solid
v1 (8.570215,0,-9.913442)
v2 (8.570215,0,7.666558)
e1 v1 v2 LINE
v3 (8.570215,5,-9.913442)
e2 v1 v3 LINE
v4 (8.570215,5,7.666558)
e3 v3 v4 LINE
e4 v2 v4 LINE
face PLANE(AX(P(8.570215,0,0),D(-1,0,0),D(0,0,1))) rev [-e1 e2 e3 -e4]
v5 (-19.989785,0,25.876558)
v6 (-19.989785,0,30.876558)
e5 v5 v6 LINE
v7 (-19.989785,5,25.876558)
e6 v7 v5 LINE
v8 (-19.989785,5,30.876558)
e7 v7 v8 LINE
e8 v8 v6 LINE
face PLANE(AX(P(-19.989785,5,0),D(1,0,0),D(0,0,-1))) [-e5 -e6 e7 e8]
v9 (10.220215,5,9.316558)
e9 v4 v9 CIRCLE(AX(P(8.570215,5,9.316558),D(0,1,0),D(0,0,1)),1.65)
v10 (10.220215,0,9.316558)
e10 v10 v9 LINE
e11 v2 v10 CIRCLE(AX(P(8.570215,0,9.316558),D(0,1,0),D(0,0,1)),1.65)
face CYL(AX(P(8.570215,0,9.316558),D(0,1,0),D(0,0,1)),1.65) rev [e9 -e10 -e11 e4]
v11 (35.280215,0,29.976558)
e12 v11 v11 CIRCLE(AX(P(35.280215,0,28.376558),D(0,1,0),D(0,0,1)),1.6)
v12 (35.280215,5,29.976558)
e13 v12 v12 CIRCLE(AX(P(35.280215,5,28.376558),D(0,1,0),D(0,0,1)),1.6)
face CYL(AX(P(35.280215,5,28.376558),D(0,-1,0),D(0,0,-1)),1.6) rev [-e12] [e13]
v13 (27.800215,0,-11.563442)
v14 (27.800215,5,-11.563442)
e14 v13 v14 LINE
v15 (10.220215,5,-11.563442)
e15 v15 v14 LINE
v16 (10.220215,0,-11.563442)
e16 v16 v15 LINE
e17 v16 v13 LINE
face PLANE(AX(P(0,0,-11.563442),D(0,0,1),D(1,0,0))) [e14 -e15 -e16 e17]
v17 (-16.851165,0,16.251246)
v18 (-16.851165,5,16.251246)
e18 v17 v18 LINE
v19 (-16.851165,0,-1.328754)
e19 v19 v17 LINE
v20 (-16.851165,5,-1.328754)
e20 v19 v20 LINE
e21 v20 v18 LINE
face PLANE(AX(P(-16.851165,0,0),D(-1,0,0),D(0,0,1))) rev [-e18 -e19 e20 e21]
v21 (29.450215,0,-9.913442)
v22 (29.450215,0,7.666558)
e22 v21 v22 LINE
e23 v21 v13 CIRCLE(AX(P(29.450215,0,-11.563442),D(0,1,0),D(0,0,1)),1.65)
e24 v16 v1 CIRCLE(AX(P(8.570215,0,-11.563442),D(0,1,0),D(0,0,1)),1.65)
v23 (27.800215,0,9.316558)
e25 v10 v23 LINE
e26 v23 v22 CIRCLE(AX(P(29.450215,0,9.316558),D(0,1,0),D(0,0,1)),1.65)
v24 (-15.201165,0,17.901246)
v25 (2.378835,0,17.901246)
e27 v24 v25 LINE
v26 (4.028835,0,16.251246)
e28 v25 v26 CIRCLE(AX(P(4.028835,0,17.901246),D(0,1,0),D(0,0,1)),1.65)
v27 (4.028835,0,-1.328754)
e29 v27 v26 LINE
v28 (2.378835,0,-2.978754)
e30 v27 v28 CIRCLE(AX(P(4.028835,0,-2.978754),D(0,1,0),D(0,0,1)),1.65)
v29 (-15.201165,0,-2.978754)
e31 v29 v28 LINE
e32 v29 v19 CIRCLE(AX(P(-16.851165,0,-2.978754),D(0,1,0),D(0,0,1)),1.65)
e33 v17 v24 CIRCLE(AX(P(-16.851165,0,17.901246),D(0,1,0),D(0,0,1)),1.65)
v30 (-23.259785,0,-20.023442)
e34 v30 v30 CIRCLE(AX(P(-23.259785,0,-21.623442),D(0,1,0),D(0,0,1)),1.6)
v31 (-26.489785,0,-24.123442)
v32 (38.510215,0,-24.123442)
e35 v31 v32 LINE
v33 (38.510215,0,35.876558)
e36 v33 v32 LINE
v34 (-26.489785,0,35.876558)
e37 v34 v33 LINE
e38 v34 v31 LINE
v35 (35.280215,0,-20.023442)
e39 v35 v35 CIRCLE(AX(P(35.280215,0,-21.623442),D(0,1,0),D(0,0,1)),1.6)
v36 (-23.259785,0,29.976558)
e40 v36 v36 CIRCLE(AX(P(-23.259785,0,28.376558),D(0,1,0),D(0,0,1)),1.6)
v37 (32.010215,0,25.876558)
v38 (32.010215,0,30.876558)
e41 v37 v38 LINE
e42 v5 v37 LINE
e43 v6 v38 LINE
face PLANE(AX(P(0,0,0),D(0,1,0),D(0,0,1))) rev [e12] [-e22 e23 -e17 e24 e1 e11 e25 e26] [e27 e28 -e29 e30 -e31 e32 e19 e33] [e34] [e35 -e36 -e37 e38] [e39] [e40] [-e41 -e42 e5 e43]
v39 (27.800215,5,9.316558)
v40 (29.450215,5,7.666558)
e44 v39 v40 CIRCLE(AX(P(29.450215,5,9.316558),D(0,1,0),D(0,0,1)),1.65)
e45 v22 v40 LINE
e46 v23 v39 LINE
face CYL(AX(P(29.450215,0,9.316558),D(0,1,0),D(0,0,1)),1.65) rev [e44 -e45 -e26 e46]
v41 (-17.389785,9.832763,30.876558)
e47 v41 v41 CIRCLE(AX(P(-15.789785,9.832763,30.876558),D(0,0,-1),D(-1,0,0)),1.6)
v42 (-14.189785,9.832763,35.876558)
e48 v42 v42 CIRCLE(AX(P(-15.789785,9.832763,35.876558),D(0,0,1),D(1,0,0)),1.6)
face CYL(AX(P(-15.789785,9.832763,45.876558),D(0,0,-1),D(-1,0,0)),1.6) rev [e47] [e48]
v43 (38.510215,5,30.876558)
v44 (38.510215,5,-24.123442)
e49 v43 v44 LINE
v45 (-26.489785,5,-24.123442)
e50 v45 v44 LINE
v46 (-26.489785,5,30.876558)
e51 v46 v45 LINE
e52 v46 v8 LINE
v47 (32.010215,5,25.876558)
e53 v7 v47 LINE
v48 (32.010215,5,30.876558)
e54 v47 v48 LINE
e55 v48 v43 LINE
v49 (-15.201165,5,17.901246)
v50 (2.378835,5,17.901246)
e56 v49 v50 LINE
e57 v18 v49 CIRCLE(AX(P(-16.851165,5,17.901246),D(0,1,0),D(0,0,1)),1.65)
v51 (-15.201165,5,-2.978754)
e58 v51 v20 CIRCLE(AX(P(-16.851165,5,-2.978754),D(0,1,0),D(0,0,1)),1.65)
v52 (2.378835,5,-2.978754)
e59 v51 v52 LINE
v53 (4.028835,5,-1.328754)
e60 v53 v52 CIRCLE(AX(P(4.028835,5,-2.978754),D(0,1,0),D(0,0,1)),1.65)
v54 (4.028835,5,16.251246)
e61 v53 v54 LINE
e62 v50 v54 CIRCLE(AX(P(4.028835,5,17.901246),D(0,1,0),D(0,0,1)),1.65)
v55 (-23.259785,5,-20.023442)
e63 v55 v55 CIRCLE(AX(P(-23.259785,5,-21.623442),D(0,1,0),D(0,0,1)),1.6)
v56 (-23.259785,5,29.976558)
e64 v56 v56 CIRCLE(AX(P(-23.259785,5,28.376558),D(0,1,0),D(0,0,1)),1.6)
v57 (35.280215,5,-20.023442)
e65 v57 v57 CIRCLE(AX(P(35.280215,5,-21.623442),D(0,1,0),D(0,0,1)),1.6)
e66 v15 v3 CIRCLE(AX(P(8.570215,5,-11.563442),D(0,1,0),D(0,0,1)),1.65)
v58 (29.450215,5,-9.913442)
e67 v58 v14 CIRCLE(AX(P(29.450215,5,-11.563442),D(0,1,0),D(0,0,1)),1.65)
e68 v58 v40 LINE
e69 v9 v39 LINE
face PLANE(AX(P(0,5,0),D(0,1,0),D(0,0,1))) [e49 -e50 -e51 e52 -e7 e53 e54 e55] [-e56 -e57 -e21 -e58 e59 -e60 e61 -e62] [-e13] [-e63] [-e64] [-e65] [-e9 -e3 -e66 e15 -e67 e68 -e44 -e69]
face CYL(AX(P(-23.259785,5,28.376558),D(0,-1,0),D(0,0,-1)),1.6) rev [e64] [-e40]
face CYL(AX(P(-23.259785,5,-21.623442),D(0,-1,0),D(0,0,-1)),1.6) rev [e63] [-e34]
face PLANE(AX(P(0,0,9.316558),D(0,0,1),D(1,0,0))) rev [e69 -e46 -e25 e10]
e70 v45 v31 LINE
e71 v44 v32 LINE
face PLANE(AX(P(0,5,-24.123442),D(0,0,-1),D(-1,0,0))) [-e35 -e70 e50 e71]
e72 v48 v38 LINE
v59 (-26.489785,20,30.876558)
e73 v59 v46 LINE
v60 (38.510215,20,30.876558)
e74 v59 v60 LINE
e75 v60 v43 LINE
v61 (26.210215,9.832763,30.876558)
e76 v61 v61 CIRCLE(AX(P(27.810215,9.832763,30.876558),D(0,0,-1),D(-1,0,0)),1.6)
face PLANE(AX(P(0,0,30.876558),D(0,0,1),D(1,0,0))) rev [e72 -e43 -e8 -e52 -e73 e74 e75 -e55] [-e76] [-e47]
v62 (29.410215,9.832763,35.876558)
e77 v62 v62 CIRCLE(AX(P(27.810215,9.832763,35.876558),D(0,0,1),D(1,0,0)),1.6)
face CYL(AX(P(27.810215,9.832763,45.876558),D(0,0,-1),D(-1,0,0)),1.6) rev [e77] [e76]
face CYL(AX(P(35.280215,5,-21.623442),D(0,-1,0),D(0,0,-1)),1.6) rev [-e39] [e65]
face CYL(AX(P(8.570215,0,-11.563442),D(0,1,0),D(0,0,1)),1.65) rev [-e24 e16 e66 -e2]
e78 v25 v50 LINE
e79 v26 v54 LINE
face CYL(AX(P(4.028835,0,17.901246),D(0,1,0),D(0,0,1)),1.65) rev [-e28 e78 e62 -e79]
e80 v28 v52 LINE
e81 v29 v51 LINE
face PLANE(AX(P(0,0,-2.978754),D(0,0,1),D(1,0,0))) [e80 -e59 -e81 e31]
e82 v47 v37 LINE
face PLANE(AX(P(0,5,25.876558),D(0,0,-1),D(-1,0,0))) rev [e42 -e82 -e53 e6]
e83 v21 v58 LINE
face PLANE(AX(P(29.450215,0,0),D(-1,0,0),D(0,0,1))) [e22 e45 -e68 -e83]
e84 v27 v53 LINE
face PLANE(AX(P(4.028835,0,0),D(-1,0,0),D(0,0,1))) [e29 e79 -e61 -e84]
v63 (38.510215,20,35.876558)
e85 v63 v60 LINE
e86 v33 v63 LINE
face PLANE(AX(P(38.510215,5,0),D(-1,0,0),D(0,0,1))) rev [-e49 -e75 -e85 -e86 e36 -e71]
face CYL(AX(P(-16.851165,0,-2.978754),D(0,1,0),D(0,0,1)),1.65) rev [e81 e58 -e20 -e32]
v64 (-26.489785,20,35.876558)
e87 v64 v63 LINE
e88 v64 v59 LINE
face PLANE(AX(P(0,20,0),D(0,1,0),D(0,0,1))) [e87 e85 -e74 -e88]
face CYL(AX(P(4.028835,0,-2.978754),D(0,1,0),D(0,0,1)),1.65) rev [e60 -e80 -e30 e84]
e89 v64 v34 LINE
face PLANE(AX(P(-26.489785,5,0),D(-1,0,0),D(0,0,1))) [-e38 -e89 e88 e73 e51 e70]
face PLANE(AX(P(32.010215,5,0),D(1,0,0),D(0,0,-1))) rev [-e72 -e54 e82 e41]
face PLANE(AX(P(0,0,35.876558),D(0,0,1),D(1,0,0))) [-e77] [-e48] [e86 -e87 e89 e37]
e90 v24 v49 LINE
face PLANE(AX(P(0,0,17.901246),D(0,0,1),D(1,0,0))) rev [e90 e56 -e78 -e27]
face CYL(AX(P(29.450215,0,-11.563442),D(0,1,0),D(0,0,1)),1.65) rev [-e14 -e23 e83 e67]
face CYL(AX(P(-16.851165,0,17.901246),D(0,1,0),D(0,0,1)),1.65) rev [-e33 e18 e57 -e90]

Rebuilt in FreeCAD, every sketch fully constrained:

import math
import FreeCAD as App
import Part
import Sketcher

V = App.Vector


def add_polygon(sketch, points):
    """Adds a closed chain of lines whose ends are joined by coincident constraints."""
    first, n = sketch.GeometryCount, len(points)
    for a, b in zip(points, points[1:] + points[:1]):
        sketch.addGeometry(Part.LineSegment(App.Vector(*a, 0), App.Vector(*b, 0)), False)
    for i in range(n):
        sketch.addConstraint(Sketcher.Constraint("Coincident", first + i, 2, first + (i + 1) % n, 1))

doc = App.newDocument("Part")
body = doc.addObject("PartDesign::Body", "Body")

# Sketch on XZ plane
sketch1 = body.newObject("Sketcher::SketchObject", "Sketch")
sketch1.AttachmentSupport = (doc.getObject("XZ_Plane"), [""])
sketch1.MapMode = "FlatFace"
add_polygon(sketch1, [(-19.989785, 25.876558), (32.010215, 25.876558), (32.010215, 30.876558), (38.510215, 30.876558), (38.510215, -24.123442), (-26.489785, -24.123442), (-26.489785, 30.876558), (-19.989785, 30.876558)])  # lines 0-7
sketch1.addGeometry(Part.Circle(V(-23.259785, 28.376558, 0), V(0, 0, 1), 1.6), False)  # 8
sketch1.addGeometry(Part.Circle(V(35.280215, 28.376558, 0), V(0, 0, 1), 1.6), False)  # 9
sketch1.addGeometry(Part.Circle(V(-23.259785, -21.623442, 0), V(0, 0, 1), 1.6), False)  # 10
sketch1.addGeometry(Part.Circle(V(35.280215, -21.623442, 0), V(0, 0, 1), 1.6), False)  # 11
sketch1.addConstraint(Sketcher.Constraint("Horizontal", 0))
sketch1.addConstraint(Sketcher.Constraint("Vertical", 1))
sketch1.addConstraint(Sketcher.Constraint("Horizontal", 2))
sketch1.addConstraint(Sketcher.Constraint("Vertical", 3))
sketch1.addConstraint(Sketcher.Constraint("Horizontal", 4))
sketch1.addConstraint(Sketcher.Constraint("Vertical", 5))
sketch1.addConstraint(Sketcher.Constraint("Horizontal", 6))
sketch1.addConstraint(Sketcher.Constraint("Vertical", 7))
sketch1.addConstraint(Sketcher.Constraint("Equal", 8, 9))
sketch1.addConstraint(Sketcher.Constraint("Equal", 9, 10))
sketch1.addConstraint(Sketcher.Constraint("Equal", 10, 11))
sketch1.addConstraint(Sketcher.Constraint("Horizontal", 8, 3, 9, 3))
sketch1.addConstraint(Sketcher.Constraint("Horizontal", 10, 3, 11, 3))
sketch1.addConstraint(Sketcher.Constraint("Horizontal", 2, 2, 5, 2))
sketch1.addConstraint(Sketcher.Constraint("Vertical", 8, 3, 10, 3))
sketch1.addConstraint(Sketcher.Constraint("Vertical", 9, 3, 11, 3))
sketch1.addConstraint(Sketcher.Constraint("Equal", 2, 6))
sketch1.addConstraint(Sketcher.Constraint("Diameter", 8, 3.2))
sketch1.addConstraint(Sketcher.Constraint("DistanceX", 0, 1, 0, 2, 52.0))
sketch1.addConstraint(Sketcher.Constraint("DistanceX", 4, 2, 4, 1, 65.0))
sketch1.addConstraint(Sketcher.Constraint("DistanceY", 1, 1, 1, 2, 5.0))
sketch1.addConstraint(Sketcher.Constraint("DistanceY", 3, 2, 3, 1, 55.0))
sketch1.addConstraint(Sketcher.Constraint("DistanceY", 10, 3, 8, 3, 50.0))
sketch1.addConstraint(Sketcher.Constraint("DistanceY", 0, 2, 9, 3, 2.5))
sketch1.addConstraint(Sketcher.Constraint("DistanceX", 8, 3, 9, 3, 58.54))
sketch1.addConstraint(Sketcher.Constraint("DistanceX", 0, 2, 9, 3, 3.27))
sketch1.addConstraint(Sketcher.Constraint("DistanceX", 8, 3, -1, 1, 23.259785))
sketch1.addConstraint(Sketcher.Constraint("DistanceY", -1, 1, 8, 3, 28.376558))
pad1 = body.newObject("PartDesign::Pad", "Pad")
pad1.Profile = sketch1
pad1.Length = 5
pad1.Reversed = True

# Sketch on XZ plane
sketch2 = body.newObject("Sketcher::SketchObject", "Sketch001")
sketch2.AttachmentSupport = (doc.getObject("XZ_Plane"), [""])
sketch2.MapMode = "FlatFace"
sketch2.AttachmentOffset = App.Placement(V(0, 0, -5), App.Rotation())
sketch2.addGeometry(Part.ArcOfCircle(Part.Circle(V(-16.851165, 17.901246, 0), V(0, 0, 1), 1.65), math.radians(0), math.radians(270)), False)
sketch2.addGeometry(Part.LineSegment(V(-15.201165, 17.901246, 0), V(2.378835, 17.901246, 0)), False)
sketch2.addGeometry(Part.ArcOfCircle(Part.Circle(V(4.028835, 17.901246, 0), V(0, 0, 1), 1.65), math.radians(-90), math.radians(180)), False)
sketch2.addGeometry(Part.LineSegment(V(4.028835, 16.251246, 0), V(4.028835, -1.328754, 0)), False)
sketch2.addGeometry(Part.ArcOfCircle(Part.Circle(V(4.028835, -2.978754, 0), V(0, 0, 1), 1.65), math.radians(0), math.radians(90)), False)
sketch2.addGeometry(Part.ArcOfCircle(Part.Circle(V(4.028835, -2.978754, 0), V(0, 0, 1), 1.65), math.radians(180), math.radians(360)), False)
sketch2.addGeometry(Part.LineSegment(V(2.378835, -2.978754, 0), V(-15.201165, -2.978754, 0)), False)
sketch2.addGeometry(Part.ArcOfCircle(Part.Circle(V(-16.851165, -2.978754, 0), V(0, 0, 1), 1.65), math.radians(90), math.radians(360)), False)
sketch2.addGeometry(Part.LineSegment(V(-16.851165, -1.328754, 0), V(-16.851165, 16.251246, 0)), False)
sketch2.addGeometry(Part.ArcOfCircle(Part.Circle(V(8.570215, 9.316558, 0), V(0, 0, 1), 1.65), math.radians(0), math.radians(270)), False)
sketch2.addGeometry(Part.LineSegment(V(10.220215, 9.316558, 0), V(27.800215, 9.316558, 0)), False)
sketch2.addGeometry(Part.ArcOfCircle(Part.Circle(V(29.450215, 9.316558, 0), V(0, 0, 1), 1.65), math.radians(-90), math.radians(180)), False)
sketch2.addGeometry(Part.LineSegment(V(29.450215, 7.666558, 0), V(29.450215, -9.913442, 0)), False)
sketch2.addGeometry(Part.ArcOfCircle(Part.Circle(V(29.450215, -11.563442, 0), V(0, 0, 1), 1.65), math.radians(180), math.radians(450)), False)
sketch2.addGeometry(Part.LineSegment(V(27.800215, -11.563442, 0), V(10.220215, -11.563442, 0)), False)
sketch2.addGeometry(Part.ArcOfCircle(Part.Circle(V(8.570215, -11.563442, 0), V(0, 0, 1), 1.65), math.radians(90), math.radians(360)), False)
sketch2.addGeometry(Part.LineSegment(V(8.570215, -9.913442, 0), V(8.570215, 7.666558, 0)), False)
sketch2.addConstraint(Sketcher.Constraint("Coincident", 0, 1, 1, 1))
sketch2.addConstraint(Sketcher.Constraint("Coincident", 1, 2, 2, 2))
sketch2.addConstraint(Sketcher.Constraint("Coincident", 2, 1, 3, 1))
sketch2.addConstraint(Sketcher.Constraint("Coincident", 3, 2, 4, 2))
sketch2.addConstraint(Sketcher.Constraint("Tangent", 4, 1, 5, 2))
sketch2.addConstraint(Sketcher.Constraint("Coincident", 5, 1, 6, 1))
sketch2.addConstraint(Sketcher.Constraint("Coincident", 6, 2, 7, 2))
sketch2.addConstraint(Sketcher.Constraint("Coincident", 7, 1, 8, 1))
sketch2.addConstraint(Sketcher.Constraint("Coincident", 8, 2, 0, 2))
sketch2.addConstraint(Sketcher.Constraint("Coincident", 9, 1, 10, 1))
sketch2.addConstraint(Sketcher.Constraint("Coincident", 10, 2, 11, 2))
sketch2.addConstraint(Sketcher.Constraint("Coincident", 11, 1, 12, 1))
sketch2.addConstraint(Sketcher.Constraint("Coincident", 12, 2, 13, 2))
sketch2.addConstraint(Sketcher.Constraint("Coincident", 13, 1, 14, 1))
sketch2.addConstraint(Sketcher.Constraint("Coincident", 14, 2, 15, 2))
sketch2.addConstraint(Sketcher.Constraint("Coincident", 15, 1, 16, 1))
sketch2.addConstraint(Sketcher.Constraint("Coincident", 16, 2, 9, 2))
sketch2.addConstraint(Sketcher.Constraint("Horizontal", 1))
sketch2.addConstraint(Sketcher.Constraint("Vertical", 3))
sketch2.addConstraint(Sketcher.Constraint("Horizontal", 6))
sketch2.addConstraint(Sketcher.Constraint("Vertical", 8))
sketch2.addConstraint(Sketcher.Constraint("Horizontal", 10))
sketch2.addConstraint(Sketcher.Constraint("Vertical", 12))
sketch2.addConstraint(Sketcher.Constraint("Horizontal", 14))
sketch2.addConstraint(Sketcher.Constraint("Vertical", 16))
sketch2.addConstraint(Sketcher.Constraint("Equal", 0, 2))
sketch2.addConstraint(Sketcher.Constraint("Equal", 2, 4))
sketch2.addConstraint(Sketcher.Constraint("Equal", 4, 5))
sketch2.addConstraint(Sketcher.Constraint("Equal", 5, 7))
sketch2.addConstraint(Sketcher.Constraint("Equal", 7, 9))
sketch2.addConstraint(Sketcher.Constraint("Equal", 9, 11))
sketch2.addConstraint(Sketcher.Constraint("Equal", 11, 13))
sketch2.addConstraint(Sketcher.Constraint("Equal", 13, 15))
sketch2.addConstraint(Sketcher.Constraint("Horizontal", 0, 3, 2, 3))
sketch2.addConstraint(Sketcher.Constraint("Horizontal", 5, 3, 7, 3))
sketch2.addConstraint(Sketcher.Constraint("Horizontal", 9, 3, 11, 3))
sketch2.addConstraint(Sketcher.Constraint("Horizontal", 13, 3, 15, 3))
sketch2.addConstraint(Sketcher.Constraint("Horizontal", 2, 3, 0, 1))
sketch2.addConstraint(Sketcher.Constraint("Horizontal", 7, 3, 4, 1))
sketch2.addConstraint(Sketcher.Constraint("Horizontal", 4, 1, 5, 1))
sketch2.addConstraint(Sketcher.Constraint("Horizontal", 11, 3, 9, 1))
sketch2.addConstraint(Sketcher.Constraint("Horizontal", 15, 3, 13, 1))
sketch2.addConstraint(Sketcher.Constraint("Vertical", 2, 3, 4, 3))
sketch2.addConstraint(Sketcher.Constraint("Vertical", 0, 3, 7, 3))
sketch2.addConstraint(Sketcher.Constraint("Vertical", 11, 3, 13, 3))
sketch2.addConstraint(Sketcher.Constraint("Vertical", 9, 3, 15, 3))
sketch2.addConstraint(Sketcher.Constraint("Vertical", 5, 3, 2, 1))
sketch2.addConstraint(Sketcher.Constraint("Vertical", 0, 3, 7, 1))
sketch2.addConstraint(Sketcher.Constraint("Vertical", 13, 3, 11, 1))
sketch2.addConstraint(Sketcher.Constraint("Vertical", 9, 3, 15, 1))
sketch2.addConstraint(Sketcher.Constraint("Equal", 6, 10))
sketch2.addConstraint(Sketcher.Constraint("Equal", 14, 3))
sketch2.addConstraint(Sketcher.Constraint("Equal", 8, 12))
sketch2.addConstraint(Sketcher.Constraint("Radius", 0, 1.65))
sketch2.addConstraint(Sketcher.Constraint("DistanceX", 1, 1, 1, 2, 17.58))
sketch2.addConstraint(Sketcher.Constraint("DistanceX", 2, 3, 9, 3, 4.54138))
sketch2.addConstraint(Sketcher.Constraint("DistanceY", 9, 3, 2, 3, 8.584688))
sketch2.addConstraint(Sketcher.Constraint("DistanceX", 0, 3, -1, 1, 16.851165))
sketch2.addConstraint(Sketcher.Constraint("DistanceY", -1, 1, 0, 3, 17.901246))
pocket1 = body.newObject("PartDesign::Pocket", "Pocket")
pocket1.Profile = sketch2
pocket1.Length = 5
pocket1.Reversed = True

# Sketch on XY plane
sketch3 = body.newObject("Sketcher::SketchObject", "Sketch002")
sketch3.AttachmentSupport = (doc.getObject("XY_Plane"), [""])
sketch3.MapMode = "FlatFace"
sketch3.AttachmentOffset = App.Placement(V(0, 0, 30.876558), App.Rotation())
add_polygon(sketch3, [(-26.489785, 5), (-26.489785, 0), (38.510215, 0), (38.510215, 5)])  # lines 0-3
sketch3.addConstraint(Sketcher.Constraint("Vertical", 0))
sketch3.addConstraint(Sketcher.Constraint("Horizontal", 1))
sketch3.addConstraint(Sketcher.Constraint("Vertical", 2))
sketch3.addConstraint(Sketcher.Constraint("Horizontal", 3))
sketch3.addConstraint(Sketcher.Constraint("PointOnObject", 0, 2, -1))
sketch3.addConstraint(Sketcher.Constraint("DistanceX", 1, 1, 1, 2, 65.0))
sketch3.addConstraint(Sketcher.Constraint("DistanceY", 0, 2, 0, 1, 5.0))
sketch3.addConstraint(Sketcher.Constraint("DistanceX", 0, 2, -1, 1, 26.489785))
pad2 = body.newObject("PartDesign::Pad", "Pad001")
pad2.Profile = sketch3
pad2.Length = 5

# Sketch on XZ plane
sketch4 = body.newObject("Sketcher::SketchObject", "Sketch003")
sketch4.AttachmentSupport = (doc.getObject("XZ_Plane"), [""])
sketch4.MapMode = "FlatFace"
sketch4.AttachmentOffset = App.Placement(V(0, 0, -5), App.Rotation())
add_polygon(sketch4, [(-26.489785, 30.876558), (-26.489785, 35.876558), (38.510215, 35.876558), (38.510215, 30.876558)])  # lines 0-3
sketch4.addConstraint(Sketcher.Constraint("Vertical", 0))
sketch4.addConstraint(Sketcher.Constraint("Horizontal", 1))
sketch4.addConstraint(Sketcher.Constraint("Vertical", 2))
sketch4.addConstraint(Sketcher.Constraint("Horizontal", 3))
sketch4.addConstraint(Sketcher.Constraint("DistanceX", 1, 1, 1, 2, 65.0))
sketch4.addConstraint(Sketcher.Constraint("DistanceY", 0, 1, 0, 2, 5.0))
sketch4.addConstraint(Sketcher.Constraint("DistanceX", 0, 2, -1, 1, 26.489785))
sketch4.addConstraint(Sketcher.Constraint("DistanceY", -1, 1, 0, 2, 35.876558))
pad3 = body.newObject("PartDesign::Pad", "Pad002")
pad3.Profile = sketch4
pad3.Length = 15
pad3.Reversed = True

# Sketch on XY plane
sketch5 = body.newObject("Sketcher::SketchObject", "Sketch004")
sketch5.AttachmentSupport = (doc.getObject("XY_Plane"), [""])
sketch5.MapMode = "FlatFace"
sketch5.AttachmentOffset = App.Placement(V(0, 0, 30.876558), App.Rotation())
sketch5.addGeometry(Part.Circle(V(27.810215, 9.832763, 0), V(0, 0, 1), 1.6), False)
sketch5.addGeometry(Part.Circle(V(-15.789785, 9.832763, 0), V(0, 0, 1), 1.6), False)
sketch5.addConstraint(Sketcher.Constraint("Equal", 0, 1))
sketch5.addConstraint(Sketcher.Constraint("Horizontal", 0, 3, 1, 3))
sketch5.addConstraint(Sketcher.Constraint("Diameter", 0, 3.2))
sketch5.addConstraint(Sketcher.Constraint("DistanceX", 1, 3, 0, 3, 43.6))
sketch5.addConstraint(Sketcher.Constraint("DistanceX", -1, 1, 0, 3, 27.810215))
sketch5.addConstraint(Sketcher.Constraint("DistanceY", -1, 1, 0, 3, 9.832763))
pocket2 = body.newObject("PartDesign::Pocket", "Pocket001")
pocket2.Profile = sketch5
pocket2.Length = 15
pocket2.Reversed = True

doc.recompute()
